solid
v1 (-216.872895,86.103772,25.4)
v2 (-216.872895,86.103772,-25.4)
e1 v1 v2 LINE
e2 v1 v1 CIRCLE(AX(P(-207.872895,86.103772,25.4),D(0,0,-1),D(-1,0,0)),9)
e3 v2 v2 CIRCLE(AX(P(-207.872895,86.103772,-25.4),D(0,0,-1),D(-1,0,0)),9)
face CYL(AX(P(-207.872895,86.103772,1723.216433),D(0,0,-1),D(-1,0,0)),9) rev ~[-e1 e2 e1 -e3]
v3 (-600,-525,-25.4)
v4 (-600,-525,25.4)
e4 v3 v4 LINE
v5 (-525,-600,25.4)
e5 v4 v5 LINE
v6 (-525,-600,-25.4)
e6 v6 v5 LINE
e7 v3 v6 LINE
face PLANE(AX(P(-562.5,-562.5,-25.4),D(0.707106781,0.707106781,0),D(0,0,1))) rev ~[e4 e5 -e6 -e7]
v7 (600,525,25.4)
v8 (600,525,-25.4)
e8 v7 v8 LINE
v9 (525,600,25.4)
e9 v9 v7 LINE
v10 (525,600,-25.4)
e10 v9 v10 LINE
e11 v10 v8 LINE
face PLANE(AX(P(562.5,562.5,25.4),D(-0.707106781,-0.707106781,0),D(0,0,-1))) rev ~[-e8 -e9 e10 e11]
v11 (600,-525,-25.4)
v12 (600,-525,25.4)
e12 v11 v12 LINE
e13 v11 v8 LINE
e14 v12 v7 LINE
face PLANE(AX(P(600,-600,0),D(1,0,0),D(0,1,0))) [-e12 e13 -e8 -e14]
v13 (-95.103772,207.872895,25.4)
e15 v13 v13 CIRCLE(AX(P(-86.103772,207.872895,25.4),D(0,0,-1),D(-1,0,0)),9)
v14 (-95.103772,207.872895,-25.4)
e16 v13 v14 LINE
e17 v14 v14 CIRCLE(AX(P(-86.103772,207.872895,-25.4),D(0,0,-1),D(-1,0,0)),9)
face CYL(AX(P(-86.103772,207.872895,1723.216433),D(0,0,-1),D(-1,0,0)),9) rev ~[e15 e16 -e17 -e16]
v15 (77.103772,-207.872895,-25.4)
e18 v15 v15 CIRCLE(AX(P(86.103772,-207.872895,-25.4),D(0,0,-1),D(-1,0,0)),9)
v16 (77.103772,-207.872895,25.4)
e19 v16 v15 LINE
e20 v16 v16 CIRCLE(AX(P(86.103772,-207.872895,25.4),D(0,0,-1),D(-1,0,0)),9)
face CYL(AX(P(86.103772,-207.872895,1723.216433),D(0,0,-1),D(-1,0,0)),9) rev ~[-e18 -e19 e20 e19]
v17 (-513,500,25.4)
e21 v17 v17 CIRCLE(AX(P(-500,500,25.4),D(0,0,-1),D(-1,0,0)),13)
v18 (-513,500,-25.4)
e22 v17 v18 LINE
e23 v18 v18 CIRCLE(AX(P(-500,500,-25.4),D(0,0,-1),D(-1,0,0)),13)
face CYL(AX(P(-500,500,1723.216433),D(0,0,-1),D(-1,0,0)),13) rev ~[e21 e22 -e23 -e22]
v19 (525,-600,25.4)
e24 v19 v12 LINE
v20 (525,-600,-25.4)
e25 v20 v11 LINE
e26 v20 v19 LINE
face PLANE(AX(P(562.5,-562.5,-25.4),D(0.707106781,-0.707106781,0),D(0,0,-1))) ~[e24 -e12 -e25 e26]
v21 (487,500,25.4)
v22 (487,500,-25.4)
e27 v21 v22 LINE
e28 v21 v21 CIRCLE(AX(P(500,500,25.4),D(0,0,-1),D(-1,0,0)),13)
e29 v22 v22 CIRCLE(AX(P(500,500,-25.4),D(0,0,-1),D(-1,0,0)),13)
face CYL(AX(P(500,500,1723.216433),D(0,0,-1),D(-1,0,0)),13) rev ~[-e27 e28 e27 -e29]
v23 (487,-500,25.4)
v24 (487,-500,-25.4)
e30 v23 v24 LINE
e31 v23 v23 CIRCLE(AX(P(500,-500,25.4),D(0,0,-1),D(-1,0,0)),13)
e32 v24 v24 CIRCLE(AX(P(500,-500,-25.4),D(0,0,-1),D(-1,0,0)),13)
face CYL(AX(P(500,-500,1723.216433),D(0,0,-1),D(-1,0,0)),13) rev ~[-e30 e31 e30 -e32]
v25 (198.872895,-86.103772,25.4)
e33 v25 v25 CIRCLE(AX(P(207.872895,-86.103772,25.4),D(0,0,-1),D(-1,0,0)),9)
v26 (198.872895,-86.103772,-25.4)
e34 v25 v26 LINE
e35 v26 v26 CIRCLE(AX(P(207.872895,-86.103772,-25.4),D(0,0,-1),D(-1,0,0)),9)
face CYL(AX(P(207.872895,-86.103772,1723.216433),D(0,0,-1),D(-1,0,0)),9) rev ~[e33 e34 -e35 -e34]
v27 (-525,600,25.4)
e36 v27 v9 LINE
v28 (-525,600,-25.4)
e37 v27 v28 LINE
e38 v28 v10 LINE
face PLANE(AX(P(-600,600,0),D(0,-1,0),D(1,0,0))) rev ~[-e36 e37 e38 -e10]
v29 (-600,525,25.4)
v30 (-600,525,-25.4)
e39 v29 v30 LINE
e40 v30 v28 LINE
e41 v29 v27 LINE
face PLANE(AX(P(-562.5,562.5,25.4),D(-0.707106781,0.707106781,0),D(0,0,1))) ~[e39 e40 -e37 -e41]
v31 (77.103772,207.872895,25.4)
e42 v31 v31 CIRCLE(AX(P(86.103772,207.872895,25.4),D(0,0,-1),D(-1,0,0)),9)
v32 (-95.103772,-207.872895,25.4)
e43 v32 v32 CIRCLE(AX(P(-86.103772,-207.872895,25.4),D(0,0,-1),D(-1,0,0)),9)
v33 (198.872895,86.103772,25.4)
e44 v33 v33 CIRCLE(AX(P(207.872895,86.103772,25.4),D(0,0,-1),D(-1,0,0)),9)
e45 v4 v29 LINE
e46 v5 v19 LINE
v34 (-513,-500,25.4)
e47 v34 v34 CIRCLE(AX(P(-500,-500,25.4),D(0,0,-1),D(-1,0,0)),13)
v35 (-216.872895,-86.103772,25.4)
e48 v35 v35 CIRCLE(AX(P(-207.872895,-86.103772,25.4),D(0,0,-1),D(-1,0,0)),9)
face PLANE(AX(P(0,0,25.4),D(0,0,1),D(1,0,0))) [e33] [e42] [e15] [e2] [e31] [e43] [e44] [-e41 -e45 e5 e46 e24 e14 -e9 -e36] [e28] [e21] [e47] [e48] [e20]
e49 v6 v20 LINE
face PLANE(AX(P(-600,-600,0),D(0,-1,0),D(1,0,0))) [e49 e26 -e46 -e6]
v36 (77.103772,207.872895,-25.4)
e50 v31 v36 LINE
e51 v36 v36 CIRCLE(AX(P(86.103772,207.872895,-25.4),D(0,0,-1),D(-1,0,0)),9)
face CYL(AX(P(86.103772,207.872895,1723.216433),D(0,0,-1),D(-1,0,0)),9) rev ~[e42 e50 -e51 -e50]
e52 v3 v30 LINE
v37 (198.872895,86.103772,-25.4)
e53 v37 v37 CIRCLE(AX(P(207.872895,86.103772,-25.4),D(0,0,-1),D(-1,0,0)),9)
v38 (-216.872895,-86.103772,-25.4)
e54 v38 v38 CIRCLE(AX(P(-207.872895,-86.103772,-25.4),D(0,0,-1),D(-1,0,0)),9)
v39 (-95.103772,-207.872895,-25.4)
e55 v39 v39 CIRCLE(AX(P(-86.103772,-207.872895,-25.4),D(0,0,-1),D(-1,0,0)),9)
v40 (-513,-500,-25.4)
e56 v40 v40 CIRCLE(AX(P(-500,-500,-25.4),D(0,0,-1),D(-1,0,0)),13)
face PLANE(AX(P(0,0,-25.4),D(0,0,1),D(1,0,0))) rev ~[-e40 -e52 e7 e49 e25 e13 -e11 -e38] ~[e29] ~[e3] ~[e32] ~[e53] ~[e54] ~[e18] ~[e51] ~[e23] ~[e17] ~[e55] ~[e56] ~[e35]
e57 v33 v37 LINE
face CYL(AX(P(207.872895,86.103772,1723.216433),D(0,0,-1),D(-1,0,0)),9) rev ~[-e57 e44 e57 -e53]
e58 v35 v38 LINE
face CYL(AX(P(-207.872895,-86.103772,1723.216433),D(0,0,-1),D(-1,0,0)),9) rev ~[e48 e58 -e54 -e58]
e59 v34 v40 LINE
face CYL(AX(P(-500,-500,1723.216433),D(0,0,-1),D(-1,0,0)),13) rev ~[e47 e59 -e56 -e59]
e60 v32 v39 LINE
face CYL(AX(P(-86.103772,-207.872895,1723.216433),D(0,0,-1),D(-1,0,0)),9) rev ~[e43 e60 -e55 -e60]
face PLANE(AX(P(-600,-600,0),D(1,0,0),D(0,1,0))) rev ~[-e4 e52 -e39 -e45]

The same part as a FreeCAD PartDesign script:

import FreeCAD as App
import Part
import Sketcher
from FreeCAD import Vector


def edges_at(feature, points):
    """Names of the edges that pass closest to the given points."""
    edges = feature.Shape.Edges
    near = lambda p: min(range(len(edges)), key=lambda i: edges[i].distToShape(Part.Vertex(*p))[0])
    return sorted({f"Edge{near(p) + 1}" for p in points})

doc = App.newDocument("Part")
body = doc.addObject("PartDesign::Body", "Body")

sketch1 = doc.addObject("Sketcher::SketchObject", "Sketch")
body.addObject(sketch1)
sketch1.AttachmentSupport = (doc.XY_Plane, [""])
sketch1.MapMode = "FlatFace"
sketch1.addGeometry(Part.LineSegment(Vector(-600, 600, 0), Vector(-600, -600, 0)), False)
sketch1.addGeometry(Part.LineSegment(Vector(-600, -600, 0), Vector(600, -600, 0)), False)
sketch1.addGeometry(Part.LineSegment(Vector(600, -600, 0), Vector(600, 600, 0)), False)
sketch1.addGeometry(Part.LineSegment(Vector(600, 600, 0), Vector(-600, 600, 0)), False)
sketch1.addConstraint(Sketcher.Constraint("Coincident", 0, 2, 1, 1))
sketch1.addConstraint(Sketcher.Constraint("Coincident", 1, 2, 2, 1))
sketch1.addConstraint(Sketcher.Constraint("Coincident", 2, 2, 3, 1))
sketch1.addConstraint(Sketcher.Constraint("Coincident", 3, 2, 0, 1))
sketch1.addConstraint(Sketcher.Constraint("Vertical", 0))
sketch1.addConstraint(Sketcher.Constraint("Horizontal", 1))
sketch1.addConstraint(Sketcher.Constraint("Vertical", 2))
sketch1.addConstraint(Sketcher.Constraint("Horizontal", 3))
sketch1.addConstraint(Sketcher.Constraint("Symmetric", 0, 2, 2, 2, -1, 1))
sketch1.addConstraint(Sketcher.Constraint("Equal", 3, 0))
sketch1.addConstraint(Sketcher.Constraint("DistanceX", 1, 1, 1, 2, 1200.0))
pad1 = doc.addObject("PartDesign::Pad", "Pad")
body.addObject(pad1)
pad1.Profile = sketch1
pad1.Length = 50.8
pad1.Midplane = True

sketch2 = doc.addObject("Sketcher::SketchObject", "Sketch001")
body.addObject(sketch2)
sketch2.AttachmentSupport = (doc.XY_Plane, [""])
sketch2.MapMode = "FlatFace"
sketch2.AttachmentOffset = App.Placement(Vector(0, 0, 25.4), App.Rotation())
sketch2.addGeometry(Part.Circle(Vector(-86.103772, 207.872895, 0), Vector(0, 0, 1), 9), False)
sketch2.addGeometry(Part.Circle(Vector(86.103772, 207.872895, 0), Vector(0, 0, 1), 9), False)
sketch2.addGeometry(Part.Circle(Vector(207.872895, 86.103772, 0), Vector(0, 0, 1), 9), False)
sketch2.addGeometry(Part.Circle(Vector(207.872895, -86.103772, 0), Vector(0, 0, 1), 9), False)
sketch2.addGeometry(Part.Circle(Vector(86.103772, -207.872895, 0), Vector(0, 0, 1), 9), False)
sketch2.addGeometry(Part.Circle(Vector(-86.103772, -207.872895, 0), Vector(0, 0, 1), 9), False)
sketch2.addGeometry(Part.Circle(Vector(-207.872895, -86.103772, 0), Vector(0, 0, 1), 9), False)
sketch2.addGeometry(Part.Circle(Vector(-207.872895, 86.103772, 0), Vector(0, 0, 1), 9), False)
sketch2.addConstraint(Sketcher.Constraint("Equal", 0, 1))
sketch2.addConstraint(Sketcher.Constraint("Equal", 1, 2))
sketch2.addConstraint(Sketcher.Constraint("Equal", 2, 3))
sketch2.addConstraint(Sketcher.Constraint("Equal", 3, 4))
sketch2.addConstraint(Sketcher.Constraint("Equal", 4, 5))
sketch2.addConstraint(Sketcher.Constraint("Equal", 5, 6))
sketch2.addConstraint(Sketcher.Constraint("Equal", 6, 7))
sketch2.addConstraint(Sketcher.Constraint("Symmetric", 0, 3, 4, 3, -1, 1))
sketch2.addConstraint(Sketcher.Constraint("Symmetric", 1, 3, 5, 3, -1, 1))
sketch2.addConstraint(Sketcher.Constraint("Symmetric", 2, 3, 6, 3, -1, 1))
sketch2.addConstraint(Sketcher.Constraint("Symmetric", 3, 3, 7, 3, -1, 1))
sketch2.addConstraint(Sketcher.Constraint("Symmetric", 0, 3, 1, 3, -2))
sketch2.addConstraint(Sketcher.Constraint("Symmetric", 3, 3, 6, 3, -2))
sketch2.addConstraint(Sketcher.Constraint("Diameter", 0, 18.0))
sketch2.addConstraint(Sketcher.Constraint("DistanceY", 4, 3, 1, 3, 415.74579))
sketch2.addConstraint(Sketcher.Constraint("DistanceX", 6, 3, 3, 3, 415.74579))
sketch2.addConstraint(Sketcher.Constraint("DistanceX", 0, 3, -1, 1, 86.103772))
sketch2.addConstraint(Sketcher.Constraint("DistanceY", -1, 1, 2, 3, 86.103772))
doc.recompute()
hole = doc.addObject("PartDesign::Hole", "Hole")
body.addObject(hole)
hole.Profile = sketch2
hole.ThreadType = "None"
hole.Diameter = 18
hole.DepthType = "ThroughAll"
doc.recompute()

chamfer = doc.addObject("PartDesign::Chamfer", "Chamfer")
body.addObject(chamfer)
chamfer.Base = (hole, edges_at(hole, [
    (-600, 600, 0),
    (600, 600, 0),
    (600, -600, 0),
    (-600, -600, 0),
]))
chamfer.Size = 75

sketch3 = doc.addObject("Sketcher::SketchObject", "Sketch002")
body.addObject(sketch3)
sketch3.AttachmentSupport = (doc.XY_Plane, [""])
sketch3.MapMode = "FlatFace"
sketch3.AttachmentOffset = App.Placement(Vector(0, 0, 25.4), App.Rotation())
sketch3.addGeometry(Part.Circle(Vector(500, 500, 0), Vector(0, 0, 1), 13), False)
sketch3.addGeometry(Part.Circle(Vector(500, -500, 0), Vector(0, 0, 1), 13), False)
sketch3.addGeometry(Part.Circle(Vector(-500, 500, 0), Vector(0, 0, 1), 13), False)
sketch3.addGeometry(Part.Circle(Vector(-500, -500, 0), Vector(0, 0, 1), 13), False)
sketch3.addConstraint(Sketcher.Constraint("Equal", 0, 1))
sketch3.addConstraint(Sketcher.Constraint("Equal", 1, 2))
sketch3.addConstraint(Sketcher.Constraint("Equal", 2, 3))
sketch3.addConstraint(Sketcher.Constraint("Symmetric", 1, 3, 2, 3, -1, 1))
sketch3.addConstraint(Sketcher.Constraint("Symmetric", 0, 3, 3, 3, -1, 1))
sketch3.addConstraint(Sketcher.Constraint("Symmetric", 0, 3, 2, 3, -2))
sketch3.addConstraint(Sketcher.Constraint("Diameter", 0, 26.0))
sketch3.addConstraint(Sketcher.Constraint("DistanceX", -1, 1, 0, 3, 500.0))
sketch3.addConstraint(Sketcher.Constraint("DistanceY", -1, 1, 0, 3, 500.0))
doc.recompute()
hole2 = doc.addObject("PartDesign::Hole", "Hole001")
body.addObject(hole2)
hole2.Profile = sketch3
hole2.ThreadType = "None"
hole2.Diameter = 26
hole2.DepthType = "ThroughAll"

doc.recompute()
